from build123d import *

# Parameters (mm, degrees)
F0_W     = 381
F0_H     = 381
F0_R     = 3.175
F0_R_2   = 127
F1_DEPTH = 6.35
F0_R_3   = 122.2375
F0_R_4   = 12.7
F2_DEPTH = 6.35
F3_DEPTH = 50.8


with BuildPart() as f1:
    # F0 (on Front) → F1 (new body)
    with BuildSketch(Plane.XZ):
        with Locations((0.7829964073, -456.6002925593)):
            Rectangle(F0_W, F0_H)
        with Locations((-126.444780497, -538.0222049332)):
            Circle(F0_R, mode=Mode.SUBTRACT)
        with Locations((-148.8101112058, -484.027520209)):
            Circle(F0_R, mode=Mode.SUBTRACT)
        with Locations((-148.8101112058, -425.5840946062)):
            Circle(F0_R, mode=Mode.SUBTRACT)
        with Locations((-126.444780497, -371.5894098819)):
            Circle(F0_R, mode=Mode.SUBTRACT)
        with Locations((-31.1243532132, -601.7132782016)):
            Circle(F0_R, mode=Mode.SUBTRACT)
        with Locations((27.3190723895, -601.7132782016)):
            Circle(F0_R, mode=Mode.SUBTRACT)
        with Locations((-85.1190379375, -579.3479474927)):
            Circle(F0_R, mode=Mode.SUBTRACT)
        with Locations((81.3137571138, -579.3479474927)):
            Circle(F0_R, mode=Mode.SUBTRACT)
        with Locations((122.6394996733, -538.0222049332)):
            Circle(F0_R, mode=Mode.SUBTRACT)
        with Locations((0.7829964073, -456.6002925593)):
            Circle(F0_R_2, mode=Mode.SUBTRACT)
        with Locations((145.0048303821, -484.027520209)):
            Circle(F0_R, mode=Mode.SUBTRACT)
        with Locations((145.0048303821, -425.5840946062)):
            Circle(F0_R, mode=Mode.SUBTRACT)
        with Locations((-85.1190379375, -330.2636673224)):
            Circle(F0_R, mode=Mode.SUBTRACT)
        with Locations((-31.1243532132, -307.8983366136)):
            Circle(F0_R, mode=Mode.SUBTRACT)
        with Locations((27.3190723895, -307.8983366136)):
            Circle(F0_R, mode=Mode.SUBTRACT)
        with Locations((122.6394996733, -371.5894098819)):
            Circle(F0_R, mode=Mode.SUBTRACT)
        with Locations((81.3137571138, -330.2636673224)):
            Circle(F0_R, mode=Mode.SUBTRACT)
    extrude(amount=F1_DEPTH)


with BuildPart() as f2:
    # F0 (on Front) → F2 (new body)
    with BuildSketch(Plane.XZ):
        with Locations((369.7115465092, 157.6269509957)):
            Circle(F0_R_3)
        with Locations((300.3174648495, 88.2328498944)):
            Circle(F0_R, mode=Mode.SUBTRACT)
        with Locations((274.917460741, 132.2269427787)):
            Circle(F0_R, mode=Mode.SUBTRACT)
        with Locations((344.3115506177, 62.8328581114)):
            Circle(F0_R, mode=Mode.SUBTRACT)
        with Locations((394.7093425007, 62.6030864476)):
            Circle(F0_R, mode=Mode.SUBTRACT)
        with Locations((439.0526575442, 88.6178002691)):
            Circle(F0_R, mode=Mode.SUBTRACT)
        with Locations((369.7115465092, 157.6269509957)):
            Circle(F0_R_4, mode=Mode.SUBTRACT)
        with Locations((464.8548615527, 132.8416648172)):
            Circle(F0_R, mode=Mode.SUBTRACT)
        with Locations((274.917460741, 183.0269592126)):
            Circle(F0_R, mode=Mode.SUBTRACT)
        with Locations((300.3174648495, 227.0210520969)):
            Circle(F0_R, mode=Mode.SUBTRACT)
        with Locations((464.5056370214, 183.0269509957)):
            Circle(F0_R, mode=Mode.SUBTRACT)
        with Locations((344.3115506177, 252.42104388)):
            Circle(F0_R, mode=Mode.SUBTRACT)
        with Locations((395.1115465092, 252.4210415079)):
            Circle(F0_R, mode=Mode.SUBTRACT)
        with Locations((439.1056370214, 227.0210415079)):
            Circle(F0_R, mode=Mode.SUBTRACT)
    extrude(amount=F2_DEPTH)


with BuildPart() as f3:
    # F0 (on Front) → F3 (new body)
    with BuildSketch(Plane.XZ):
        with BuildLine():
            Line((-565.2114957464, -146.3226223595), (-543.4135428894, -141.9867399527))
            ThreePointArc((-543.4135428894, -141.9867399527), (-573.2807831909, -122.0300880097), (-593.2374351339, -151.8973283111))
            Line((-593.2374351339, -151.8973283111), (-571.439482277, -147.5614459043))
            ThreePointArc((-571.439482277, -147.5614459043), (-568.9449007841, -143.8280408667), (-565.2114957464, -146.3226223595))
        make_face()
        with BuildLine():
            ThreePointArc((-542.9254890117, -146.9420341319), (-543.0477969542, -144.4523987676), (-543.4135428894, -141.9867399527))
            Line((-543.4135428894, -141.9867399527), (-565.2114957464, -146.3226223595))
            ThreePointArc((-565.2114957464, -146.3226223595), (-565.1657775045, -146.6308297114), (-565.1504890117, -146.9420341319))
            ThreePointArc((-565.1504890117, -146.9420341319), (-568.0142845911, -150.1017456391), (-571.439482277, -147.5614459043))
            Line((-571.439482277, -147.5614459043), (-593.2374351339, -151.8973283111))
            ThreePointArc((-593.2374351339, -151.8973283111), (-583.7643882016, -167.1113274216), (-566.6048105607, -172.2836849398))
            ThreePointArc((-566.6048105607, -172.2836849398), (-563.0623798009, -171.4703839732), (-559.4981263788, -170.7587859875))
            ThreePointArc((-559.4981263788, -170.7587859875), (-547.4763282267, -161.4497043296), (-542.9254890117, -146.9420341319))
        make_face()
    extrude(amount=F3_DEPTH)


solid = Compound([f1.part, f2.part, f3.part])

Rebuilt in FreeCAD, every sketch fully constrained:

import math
import FreeCAD as App
import Part
import Sketcher
Q = App.Units.Quantity


def add_polygon(sketch, points):
    """Adds a closed chain of lines whose ends are joined by coincident constraints."""
    first, n = sketch.GeometryCount, len(points)
    for a, b in zip(points, points[1:] + points[:1]):
        sketch.addGeometry(Part.LineSegment(App.Vector(*a, 0), App.Vector(*b, 0)), False)
    for i in range(n):
        sketch.addConstraint(Sketcher.Constraint("Coincident", first + i, 2, first + (i + 1) % n, 1))

doc = App.newDocument("Part")
body = doc.addObject("PartDesign::Body", "Body")

sketch1 = body.newObject("Sketcher::SketchObject", "Sketch")
sketch1.AttachmentSupport = (doc.getObject("XZ_Plane"), [""])
sketch1.MapMode = "FlatFace"
add_polygon(sketch1, [(-189.7, -266.1), (-189.7, -647.1), (191.3, -647.1), (191.3, -266.1)])
sketch1.addGeometry(Part.Circle(App.Vector(-85.1, -579.3, 0), App.Vector(0, 0, 1), 3.2), False)
sketch1.addGeometry(Part.Circle(App.Vector(-126.4, -538, 0), App.Vector(0, 0, 1), 3.2), False)
sketch1.addGeometry(Part.Circle(App.Vector(-31.1, -601.7, 0), App.Vector(0, 0, 1), 3.2), False)
sketch1.addGeometry(Part.Circle(App.Vector(-148.8, -484, 0), App.Vector(0, 0, 1), 3.2), False)
sketch1.addGeometry(Part.Circle(App.Vector(27.3, -601.7, 0), App.Vector(0, 0, 1), 3.2), False)
sketch1.addGeometry(Part.Circle(App.Vector(81.3, -579.3, 0), App.Vector(0, 0, 1), 3.2), False)
sketch1.addGeometry(Part.Circle(App.Vector(122.6, -538, 0), App.Vector(0, 0, 1), 3.2), False)
sketch1.addGeometry(Part.Circle(App.Vector(0.8, -456.6, 0), App.Vector(0, 0, 1), 127), False)
sketch1.addGeometry(Part.Circle(App.Vector(145, -484, 0), App.Vector(0, 0, 1), 3.2), False)
sketch1.addGeometry(Part.Circle(App.Vector(-148.8, -425.6, 0), App.Vector(0, 0, 1), 3.2), False)
sketch1.addGeometry(Part.Circle(App.Vector(-126.4, -371.6, 0), App.Vector(0, 0, 1), 3.2), False)
sketch1.addGeometry(Part.Circle(App.Vector(-85.1, -330.3, 0), App.Vector(0, 0, 1), 3.2), False)
sketch1.addGeometry(Part.Circle(App.Vector(-31.1, -307.9, 0), App.Vector(0, 0, 1), 3.2), False)
sketch1.addGeometry(Part.Circle(App.Vector(145, -425.6, 0), App.Vector(0, 0, 1), 3.2), False)
sketch1.addGeometry(Part.Circle(App.Vector(27.3, -307.9, 0), App.Vector(0, 0, 1), 3.2), False)
sketch1.addGeometry(Part.Circle(App.Vector(122.6, -371.6, 0), App.Vector(0, 0, 1), 3.2), False)
sketch1.addGeometry(Part.Circle(App.Vector(81.3, -330.3, 0), App.Vector(0, 0, 1), 3.2), False)
sketch1.addConstraint([
    Sketcher.Constraint("Vertical", 0),
    Sketcher.Constraint("Horizontal", 1),
    Sketcher.Constraint("Vertical", 2),
    Sketcher.Constraint("Horizontal", 3),
    Sketcher.Constraint("Equal", 4, 5),
    Sketcher.Constraint("Equal", 5, 6),
    Sketcher.Constraint("Equal", 6, 7),
    Sketcher.Constraint("Equal", 7, 8),
    Sketcher.Constraint("Equal", 8, 9),
    Sketcher.Constraint("Equal", 9, 10),
    Sketcher.Constraint("Equal", 10, 12),
    Sketcher.Constraint("Equal", 12, 13),
    Sketcher.Constraint("Equal", 13, 14),
    Sketcher.Constraint("Equal", 14, 15),
    Sketcher.Constraint("Equal", 15, 16),
    Sketcher.Constraint("Equal", 16, 17),
    Sketcher.Constraint("Equal", 17, 18),
    Sketcher.Constraint("Equal", 18, 19),
    Sketcher.Constraint("Equal", 19, 20),
    Sketcher.Constraint("Horizontal", 6, 3, 8, 3),
    Sketcher.Constraint("Horizontal", 4, 3, 9, 3),
    Sketcher.Constraint("Horizontal", 5, 3, 10, 3),
    Sketcher.Constraint("Horizontal", 7, 3, 12, 3),
    Sketcher.Constraint("Horizontal", 13, 3, 17, 3),
    Sketcher.Constraint("Horizontal", 16, 3, 18, 3),
    Sketcher.Constraint("Horizontal", 14, 3, 19, 3),
    Sketcher.Constraint("Horizontal", 15, 3, 20, 3),
    Sketcher.Constraint("Vertical", 7, 3, 13, 3),
    Sketcher.Constraint("Vertical", 5, 3, 14, 3),
    Sketcher.Constraint("Vertical", 4, 3, 15, 3),
    Sketcher.Constraint("Vertical", 6, 3, 16, 3),
    Sketcher.Constraint("Vertical", 12, 3, 17, 3),
    Sketcher.Constraint("Vertical", 8, 3, 18, 3),
    Sketcher.Constraint("Vertical", 10, 3, 19, 3),
    Sketcher.Constraint("Vertical", 9, 3, 20, 3),
    Sketcher.Constraint("Equal", 3, 0),
    Sketcher.Constraint("Diameter", 11, Q("10 in")),
    Sketcher.Constraint("Diameter", 4, Q("0.25 in")),
    Sketcher.Constraint("DistanceX", 1, 1, 1, 2, Q("15 in")),
    Sketcher.Constraint("DistanceX", 11, 3, 10, 3, Q("4.7975001 in")),
    Sketcher.Constraint("DistanceX", 10, 3, 1, 2, Q("2.7024999 in")),
    Sketcher.Constraint("DistanceX", -1, 1, 10, 3, 122.6395),
    Sketcher.Constraint("DistanceX", 5, 3, -1, 1, 126.44478),
    Sketcher.Constraint("DistanceY", 6, 3, -1, 1, 601.713278),
    Sketcher.Constraint("DistanceX", 7, 3, -1, 1, 148.810111),
    Sketcher.Constraint("DistanceY", 7, 3, -1, 1, 484.02752),
    Sketcher.Constraint("DistanceX", -1, 1, 12, 3, 145.00483),
    Sketcher.Constraint("DistanceY", 14, 3, -1, 1, 371.58941),
    Sketcher.Constraint("DistanceY", 6, 3, 4, 3, 22.365331),
    Sketcher.Constraint("DistanceX", 4, 3, 8, 3, 112.43811),
    Sketcher.Constraint("DistanceX", 6, 3, 9, 3, 112.43811),
    Sketcher.Constraint("DistanceX", 7, 3, 9, 3, 230.123868),
    Sketcher.Constraint("DistanceY", 5, 3, 13, 3, 112.43811),
    Sketcher.Constraint("DistanceY", 15, 3, 16, 3, 22.365331),
    Sketcher.Constraint("DistanceX", 4, 3, -1, 1, 85.119038),
    Sketcher.Constraint("DistanceY", 5, 3, -1, 1, 538.022205),
    Sketcher.Constraint("DistanceY", 11, 3, -1, 1, 456.600293),
    Sketcher.Constraint("DistanceY", 15, 3, -1, 1, 330.263667),
    Sketcher.Constraint("DistanceY", 0, 2, -1, 1, 647.100293),
])
pad1 = body.newObject("PartDesign::Pad", "Pad")
pad1.Profile = sketch1
pad1.Length = Q("0.25 in")
body2 = doc.addObject("PartDesign::Body", "Body001")

sketch2 = body2.newObject("Sketcher::SketchObject", "Sketch001")
sketch2.AttachmentSupport = (doc.getObject("XZ_Plane001"), [""])
sketch2.MapMode = "FlatFace"
sketch2.addGeometry([
    Part.Circle(App.Vector(369.7, 157.6, 0), App.Vector(0, 0, 1), 122.2),
    Part.Circle(App.Vector(300.3, 88.2, 0), App.Vector(0, 0, 1), 3.2),
    Part.Circle(App.Vector(344.3, 62.8, 0), App.Vector(0, 0, 1), 3.2),
    Part.Circle(App.Vector(274.9, 132.2, 0), App.Vector(0, 0, 1), 3.2),
    Part.Circle(App.Vector(394.7, 62.6, 0), App.Vector(0, 0, 1), 3.2),
    Part.Circle(App.Vector(439.1, 88.6, 0), App.Vector(0, 0, 1), 3.2),
    Part.Circle(App.Vector(464.9, 132.8, 0), App.Vector(0, 0, 1), 3.2),
    Part.Circle(App.Vector(274.9, 183, 0), App.Vector(0, 0, 1), 3.2),
    Part.Circle(App.Vector(369.7, 157.6, 0), App.Vector(0, 0, 1), 12.7),
    Part.Circle(App.Vector(300.3, 227, 0), App.Vector(0, 0, 1), 3.2),
    Part.Circle(App.Vector(344.3, 252.4, 0), App.Vector(0, 0, 1), 3.2),
    Part.Circle(App.Vector(464.5, 183, 0), App.Vector(0, 0, 1), 3.2),
    Part.Circle(App.Vector(395.1, 252.4, 0), App.Vector(0, 0, 1), 3.2),
    Part.Circle(App.Vector(439.1, 227, 0), App.Vector(0, 0, 1), 3.2),
], False)
sketch2.addConstraint([
    Sketcher.Constraint("Coincident", 8, 3, 0, 3),
    Sketcher.Constraint("Equal", 1, 2),
    Sketcher.Constraint("Equal", 2, 3),
    Sketcher.Constraint("Equal", 3, 4),
    Sketcher.Constraint("Equal", 4, 5),
    Sketcher.Constraint("Equal", 5, 6),
    Sketcher.Constraint("Equal", 6, 7),
    Sketcher.Constraint("Equal", 7, 9),
    Sketcher.Constraint("Equal", 9, 10),
    Sketcher.Constraint("Equal", 10, 11),
    Sketcher.Constraint("Equal", 11, 12),
    Sketcher.Constraint("Equal", 12, 13),
    Sketcher.Constraint("Vertical", 3, 3, 7, 3),
    Sketcher.Constraint("Vertical", 1, 3, 9, 3),
    Sketcher.Constraint("Vertical", 2, 3, 10, 3),
    Sketcher.Constraint("Diameter", 8, Q("1 in")),
    Sketcher.Constraint("Diameter", 1, Q("0.25 in")),
    Sketcher.Constraint("Diameter", 0, Q("9.625 in")),
    Sketcher.Constraint("DistanceX", 2, 3, 0, 3, Q("0.9999998 in")),
    Sketcher.Constraint("DistanceX", 3, 3, 1, 3, Q("1.0000002 in")),
    Sketcher.Constraint("DistanceY", 0, 3, 11, 3, Q("1 in")),
    Sketcher.Constraint("DistanceX", 10, 3, 12, 3, Q("1.9999998 in")),
    Sketcher.Constraint("DistanceX", 13, 3, 11, 3, Q("1 in")),
    Sketcher.Constraint("DistanceY", 13, 3, 12, 3, Q("1 in")),
    Sketcher.Constraint("DistanceY", 13, 3, 10, 3, Q("1.0000001 in")),
    Sketcher.Constraint("DistanceX", 4, 3, 5, 3, Q("1.7457998 in")),
    Sketcher.Constraint("DistanceX", 0, 3, 6, 3, Q("3.7457998 in")),
    Sketcher.Constraint("DistanceY", -1, 1, 5, 3, 88.6178),
    Sketcher.Constraint("DistanceY", 1, 3, 0, 3, 69.394101),
    Sketcher.Constraint("DistanceY", 2, 3, 7, 3, 120.194101),
    Sketcher.Constraint("DistanceY", 0, 3, 9, 3, 69.394101),
    Sketcher.Constraint("DistanceY", 3, 3, 10, 3, 120.194101),
    Sketcher.Constraint("DistanceY", -1, 1, 0, 3, 157.626951),
    Sketcher.Constraint("DistanceX", -1, 1, 2, 3, 344.311551),
    Sketcher.Constraint("DistanceY", -1, 1, 2, 3, 62.832858),
    Sketcher.Constraint("DistanceX", -1, 1, 3, 3, 274.917461),
    Sketcher.Constraint("DistanceY", -1, 1, 12, 3, 252.421042),
    Sketcher.Constraint("DistanceX", 2, 3, 4, 3, 50.397792),
    Sketcher.Constraint("DistanceY", 4, 3, 2, 3, 0.229772),
    Sketcher.Constraint("DistanceY", 4, 3, 6, 3, 70.238578),
    Sketcher.Constraint("DistanceX", 5, 3, 11, 3, 25.452979),
])
pad2 = body2.newObject("PartDesign::Pad", "Pad001")
pad2.Profile = sketch2
pad2.Length = Q("0.25 in")
body3 = doc.addObject("PartDesign::Body", "Body002")

sketch3 = body3.newObject("Sketcher::SketchObject", "Sketch002")
sketch3.AttachmentSupport = (doc.getObject("XZ_Plane002"), [""])
sketch3.MapMode = "FlatFace"
sketch3.addGeometry([
    Part.ArcOfCircle(Part.Circle(App.Vector(-568.3, -146.9, 0), App.Vector(0, 0, 1), 25.4), math.radians(11), math.radians(191)),
    Part.ArcOfCircle(Part.Circle(App.Vector(-568.3, -146.9, 0), App.Vector(0, 0, 1), 25.4), math.radians(-169), math.radians(-86)),
    Part.ArcOfCircle(Part.Circle(App.Vector(-536.4, -295.6, 0), App.Vector(0, 0, 1), 127), math.radians(100.47), math.radians(103.75)),
    Part.ArcOfCircle(Part.Circle(App.Vector(-568.3, -146.9, 0), App.Vector(0, 0, 1), 25.4), math.radians(-70), math.radians(0)),
    Part.ArcOfCircle(Part.Circle(App.Vector(-568.3, -146.9, 0), App.Vector(0, 0, 1), 25.4), math.radians(0), math.radians(11.25)),
    Part.ArcOfCircle(Part.Circle(App.Vector(-568.3, -146.9, 0), App.Vector(0, 0, 1), 3.2), math.radians(11), math.radians(191)),
    Part.ArcOfCircle(Part.Circle(App.Vector(-568.3, -146.9, 0), App.Vector(0, 0, 1), 3.2), math.radians(0), math.radians(11.25)),
    Part.ArcOfCircle(Part.Circle(App.Vector(-568.3, -146.9, 0), App.Vector(0, 0, 1), 3.2), math.radians(-169), math.radians(0)),
], False)
sketch3.addConstraint([
    Sketcher.Constraint("Tangent", 0, 2, 1, 1),
    Sketcher.Constraint("Coincident", 1, 2, 2, 2),
    Sketcher.Constraint("Coincident", 2, 1, 3, 1),
    Sketcher.Constraint("Tangent", 3, 2, 4, 1),
    Sketcher.Constraint("Tangent", 4, 2, 0, 1),
    Sketcher.Constraint("Tangent", 5, 1, 6, 2),
    Sketcher.Constraint("Tangent", 6, 1, 7, 2),
    Sketcher.Constraint("Tangent", 7, 1, 5, 2),
    Sketcher.Constraint("Coincident", 3, 3, 0, 3),
    Sketcher.Constraint("Coincident", 5, 3, 0, 3),
    Sketcher.Constraint("Equal", 0, 1),
    Sketcher.Constraint("Horizontal", 7, 3, 3, 2),
    Sketcher.Constraint("Horizontal", 3, 2, 6, 1),
    Sketcher.Constraint("Radius", 0, Q("1 in")),
    Sketcher.Constraint("Radius", 2, Q("5 in")),
    Sketcher.Constraint("Radius", 5, Q("0.125 in")),
    Sketcher.Constraint("DistanceY", 1, 2, 2, 1, 1.524899),
    Sketcher.Constraint("DistanceX", 0, 3, -1, 1, 568.325489),
    Sketcher.Constraint("DistanceX", 2, 3, -1, 1, 536.418139),
    Sketcher.Constraint("DistanceY", 2, 3, -1, 1, 295.64399),
    Sketcher.Constraint("DistanceY", 0, 2, -1, 1, 151.897328),
    Sketcher.Constraint("DistanceY", 4, 2, -1, 1, 141.98674),
    Sketcher.Constraint("DistanceY", 6, 3, 5, 1, 0.619412),
    Sketcher.Constraint("DistanceY", 7, 1, 4, 3, 0.619412),
])
pad3 = body3.newObject("PartDesign::Pad", "Pad002")
pad3.Profile = sketch3
pad3.Length = Q("2 in")

doc.recompute()
